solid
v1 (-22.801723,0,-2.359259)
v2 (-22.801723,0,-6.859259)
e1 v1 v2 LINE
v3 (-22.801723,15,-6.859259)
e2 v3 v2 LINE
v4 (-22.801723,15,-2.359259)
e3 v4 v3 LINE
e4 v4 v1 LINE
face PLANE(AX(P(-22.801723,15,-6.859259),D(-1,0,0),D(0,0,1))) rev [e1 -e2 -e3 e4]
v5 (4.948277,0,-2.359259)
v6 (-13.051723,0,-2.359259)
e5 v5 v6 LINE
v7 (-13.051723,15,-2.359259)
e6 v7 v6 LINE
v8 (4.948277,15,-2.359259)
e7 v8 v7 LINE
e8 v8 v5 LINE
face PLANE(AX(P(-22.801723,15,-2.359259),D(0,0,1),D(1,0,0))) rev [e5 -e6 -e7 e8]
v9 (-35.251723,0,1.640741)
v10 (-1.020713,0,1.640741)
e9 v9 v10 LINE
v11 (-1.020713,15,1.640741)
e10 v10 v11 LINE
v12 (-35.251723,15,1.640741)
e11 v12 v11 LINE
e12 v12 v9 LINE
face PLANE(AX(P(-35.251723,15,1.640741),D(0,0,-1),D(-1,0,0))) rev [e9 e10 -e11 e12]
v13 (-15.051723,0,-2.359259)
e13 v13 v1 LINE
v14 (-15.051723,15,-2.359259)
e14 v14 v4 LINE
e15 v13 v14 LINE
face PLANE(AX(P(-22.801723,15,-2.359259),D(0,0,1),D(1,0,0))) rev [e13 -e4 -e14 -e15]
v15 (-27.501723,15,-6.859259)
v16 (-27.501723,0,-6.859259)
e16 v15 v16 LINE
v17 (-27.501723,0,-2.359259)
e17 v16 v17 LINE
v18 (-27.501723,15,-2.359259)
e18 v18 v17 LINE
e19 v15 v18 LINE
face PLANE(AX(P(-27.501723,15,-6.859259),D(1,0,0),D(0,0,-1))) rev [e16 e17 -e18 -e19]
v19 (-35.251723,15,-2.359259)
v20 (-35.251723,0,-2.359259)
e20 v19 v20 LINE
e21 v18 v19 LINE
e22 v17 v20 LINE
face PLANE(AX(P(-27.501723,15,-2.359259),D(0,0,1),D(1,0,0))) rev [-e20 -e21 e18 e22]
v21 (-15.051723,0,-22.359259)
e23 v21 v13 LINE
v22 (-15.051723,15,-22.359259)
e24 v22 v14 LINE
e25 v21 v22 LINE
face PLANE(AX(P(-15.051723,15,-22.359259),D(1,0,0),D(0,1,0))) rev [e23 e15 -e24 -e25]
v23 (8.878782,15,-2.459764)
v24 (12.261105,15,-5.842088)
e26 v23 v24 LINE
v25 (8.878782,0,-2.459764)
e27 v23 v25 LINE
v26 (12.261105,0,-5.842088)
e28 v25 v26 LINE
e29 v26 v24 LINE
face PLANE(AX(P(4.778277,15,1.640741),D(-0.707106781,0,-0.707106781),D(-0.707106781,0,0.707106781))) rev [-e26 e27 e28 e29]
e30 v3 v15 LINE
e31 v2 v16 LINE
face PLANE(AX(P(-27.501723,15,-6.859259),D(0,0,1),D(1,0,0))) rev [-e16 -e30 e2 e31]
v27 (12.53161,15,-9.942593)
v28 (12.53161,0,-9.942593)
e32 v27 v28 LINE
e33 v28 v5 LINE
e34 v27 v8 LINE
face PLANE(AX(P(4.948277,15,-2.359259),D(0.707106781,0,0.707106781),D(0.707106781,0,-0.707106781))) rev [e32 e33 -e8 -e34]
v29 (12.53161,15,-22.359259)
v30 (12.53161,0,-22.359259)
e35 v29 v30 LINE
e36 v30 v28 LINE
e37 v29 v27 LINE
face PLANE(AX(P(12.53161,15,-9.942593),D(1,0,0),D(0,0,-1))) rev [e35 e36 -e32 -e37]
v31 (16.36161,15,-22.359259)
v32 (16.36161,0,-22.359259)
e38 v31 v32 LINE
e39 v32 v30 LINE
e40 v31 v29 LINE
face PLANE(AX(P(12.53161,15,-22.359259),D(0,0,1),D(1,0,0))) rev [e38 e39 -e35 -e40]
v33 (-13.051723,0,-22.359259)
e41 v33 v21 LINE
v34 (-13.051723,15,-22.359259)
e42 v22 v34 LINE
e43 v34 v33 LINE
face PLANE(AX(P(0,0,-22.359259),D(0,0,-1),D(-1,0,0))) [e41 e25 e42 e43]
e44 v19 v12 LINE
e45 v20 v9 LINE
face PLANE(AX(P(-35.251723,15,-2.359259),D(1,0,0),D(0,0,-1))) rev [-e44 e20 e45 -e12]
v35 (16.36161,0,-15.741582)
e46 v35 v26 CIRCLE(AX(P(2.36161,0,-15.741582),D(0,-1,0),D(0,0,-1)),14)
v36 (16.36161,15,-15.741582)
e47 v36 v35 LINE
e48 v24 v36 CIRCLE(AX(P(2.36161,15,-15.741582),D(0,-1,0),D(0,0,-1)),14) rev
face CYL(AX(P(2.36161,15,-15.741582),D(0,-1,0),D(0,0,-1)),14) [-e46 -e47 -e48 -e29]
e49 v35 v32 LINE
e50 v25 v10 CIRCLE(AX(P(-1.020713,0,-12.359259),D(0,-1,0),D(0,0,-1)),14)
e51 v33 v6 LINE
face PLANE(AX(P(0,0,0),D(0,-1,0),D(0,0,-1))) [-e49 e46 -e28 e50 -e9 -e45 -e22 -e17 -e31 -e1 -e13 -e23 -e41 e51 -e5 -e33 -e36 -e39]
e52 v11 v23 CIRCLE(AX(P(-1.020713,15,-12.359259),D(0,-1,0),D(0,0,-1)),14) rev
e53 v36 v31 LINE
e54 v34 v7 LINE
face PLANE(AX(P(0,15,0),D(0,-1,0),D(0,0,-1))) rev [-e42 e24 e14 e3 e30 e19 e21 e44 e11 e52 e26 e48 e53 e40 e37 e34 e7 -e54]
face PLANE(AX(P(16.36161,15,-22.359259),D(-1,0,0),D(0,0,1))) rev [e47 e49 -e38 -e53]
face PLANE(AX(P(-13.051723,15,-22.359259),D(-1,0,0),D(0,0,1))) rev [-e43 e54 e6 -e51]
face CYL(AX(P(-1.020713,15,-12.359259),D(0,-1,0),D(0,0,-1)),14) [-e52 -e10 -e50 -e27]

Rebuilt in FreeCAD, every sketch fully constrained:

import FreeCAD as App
import Part
import Sketcher

V = App.Vector
Q = App.Units.Quantity


def edges_at(feature, points):
    """Names of the edges that pass closest to the given points."""
    edges = feature.Shape.Edges
    near = lambda p: min(range(len(edges)), key=lambda i: edges[i].distToShape(Part.Vertex(*p))[0])
    return sorted({f"Edge{near(p) + 1}" for p in points})

doc = App.newDocument("Part")
body = doc.addObject("PartDesign::Body", "Body")

sketch1 = body.newObject("Sketcher::SketchObject", "Sketch")
sketch1.AttachmentSupport = (doc.getObject("XZ_Plane"), [""])
sketch1.MapMode = "FlatFace"
sketch1.addGeometry([
    Part.LineSegment(V(-22.8, -6.9, 0), V(-27.5, -6.9, 0)),
    Part.LineSegment(V(-27.5, -6.9, 0), V(-27.5, -2.4, 0)),
    Part.LineSegment(V(-27.5, -2.4, 0), V(-35.3, -2.4, 0)),
    Part.LineSegment(V(-35.3, -2.4, 0), V(-35.3, 1.6, 0)),
    Part.LineSegment(V(-35.3, 1.6, 0), V(4.8, 1.6, 0)),
    Part.LineSegment(V(4.8, 1.6, 0), V(16.4, -9.9, 0)),
    Part.LineSegment(V(16.4, -9.9, 0), V(16.4, -22.4, 0)),
    Part.LineSegment(V(16.4, -22.4, 0), V(12.5, -22.4, 0)),
    Part.LineSegment(V(12.5, -22.4, 0), V(12.5, -9.9, 0)),
    Part.LineSegment(V(12.5, -9.9, 0), V(4.9, -2.4, 0)),
    Part.LineSegment(V(4.9, -2.4, 0), V(-22.8, -2.4, 0)),
    Part.LineSegment(V(-22.8, -2.4, 0), V(-22.8, -6.9, 0)),
], False)
sketch1.addConstraint([
    Sketcher.Constraint("Coincident", 0, 2, 1, 1),
    Sketcher.Constraint("Coincident", 1, 2, 2, 1),
    Sketcher.Constraint("Coincident", 2, 2, 3, 1),
    Sketcher.Constraint("Coincident", 3, 2, 4, 1),
    Sketcher.Constraint("Coincident", 4, 2, 5, 1),
    Sketcher.Constraint("Coincident", 5, 2, 6, 1),
    Sketcher.Constraint("Coincident", 6, 2, 7, 1),
    Sketcher.Constraint("Coincident", 7, 2, 8, 1),
    Sketcher.Constraint("Coincident", 8, 2, 9, 1),
    Sketcher.Constraint("Coincident", 9, 2, 10, 1),
    Sketcher.Constraint("Coincident", 10, 2, 11, 1),
    Sketcher.Constraint("Coincident", 11, 2, 0, 1),
    Sketcher.Constraint("Horizontal", 0),
    Sketcher.Constraint("Vertical", 1),
    Sketcher.Constraint("Horizontal", 2),
    Sketcher.Constraint("Vertical", 3),
    Sketcher.Constraint("Horizontal", 4),
    Sketcher.Constraint("Vertical", 6),
    Sketcher.Constraint("Horizontal", 7),
    Sketcher.Constraint("Vertical", 8),
    Sketcher.Constraint("Horizontal", 10),
    Sketcher.Constraint("Vertical", 11),
    Sketcher.Constraint("Parallel", 5, 9),
    Sketcher.Constraint("Horizontal", 5, 2, 8, 2),
    Sketcher.Constraint("Horizontal", 2, 2, 9, 2),
    Sketcher.Constraint("DistanceY", 3, 1, 3, 2, 4.0),
    Sketcher.Constraint("Angle", 5, Q("-45 deg")),
    Sketcher.Constraint("DistanceX", 0, 2, 0, 1, 4.7),
    Sketcher.Constraint("DistanceY", 1, 1, 1, 2, 4.5),
    Sketcher.Constraint("DistanceY", 6, 2, 4, 2, 24.0),
    Sketcher.Constraint("DistanceX", 2, 2, 2, 1, 7.75),
    Sketcher.Constraint("DistanceX", 4, 1, 4, 2, 40.03),
    Sketcher.Constraint("DistanceX", 7, 2, 7, 1, 3.83),
    Sketcher.Constraint("DistanceY", 6, 2, 6, 1, 12.416667),
    Sketcher.Constraint("DistanceY", 0, 2, -1, 1, 6.859259),
    Sketcher.Constraint("DistanceX", -1, 1, 5, 2, 16.36161),
])
pad1 = body.newObject("PartDesign::Pad", "Pad")
pad1.Profile = sketch1
pad1.Length = 15
pad1.Reversed = True
doc.recompute()

fillet = body.newObject("PartDesign::Fillet", "Fillet")
fillet.Base = (pad1, edges_at(pad1, [(16.362, 7.5, -9.943), (4.778, 7.5, 1.641)]))
fillet.Radius = 14

sketch2 = body.newObject("Sketcher::SketchObject", "Sketch001")
sketch2.AttachmentSupport = (doc.getObject("XY_Plane"), [""])
sketch2.MapMode = "FlatFace"
sketch2.AttachmentOffset = App.Placement(V(0, 0, -2.359259), App.Rotation())
sketch2.addGeometry([
    Part.LineSegment(V(-13.1, 15, 0), V(-13.1, 0, 0)),
    Part.LineSegment(V(-13.1, 0, 0), V(-15.1, 0, 0)),
    Part.LineSegment(V(-15.1, 0, 0), V(-15.1, 15, 0)),
    Part.LineSegment(V(-15.1, 15, 0), V(-13.1, 15, 0)),
], False)
sketch2.addConstraint([
    Sketcher.Constraint("Coincident", 0, 2, 1, 1),
    Sketcher.Constraint("Coincident", 1, 2, 2, 1),
    Sketcher.Constraint("Coincident", 2, 2, 3, 1),
    Sketcher.Constraint("Coincident", 3, 2, 0, 1),
    Sketcher.Constraint("Vertical", 0),
    Sketcher.Constraint("Horizontal", 1),
    Sketcher.Constraint("Vertical", 2),
    Sketcher.Constraint("Horizontal", 3),
    Sketcher.Constraint("PointOnObject", 0, 2, -1),
    Sketcher.Constraint("DistanceX", 1, 2, 1, 1, 2.0),
    Sketcher.Constraint("DistanceY", 0, 2, 0, 1, 15.0),
    Sketcher.Constraint("DistanceX", 0, 2, -1, 1, 13.051723),
])
pad2 = body.newObject("PartDesign::Pad", "Pad001")
pad2.Profile = sketch2
pad2.Length = 20
pad2.Reversed = True

doc.recompute()
